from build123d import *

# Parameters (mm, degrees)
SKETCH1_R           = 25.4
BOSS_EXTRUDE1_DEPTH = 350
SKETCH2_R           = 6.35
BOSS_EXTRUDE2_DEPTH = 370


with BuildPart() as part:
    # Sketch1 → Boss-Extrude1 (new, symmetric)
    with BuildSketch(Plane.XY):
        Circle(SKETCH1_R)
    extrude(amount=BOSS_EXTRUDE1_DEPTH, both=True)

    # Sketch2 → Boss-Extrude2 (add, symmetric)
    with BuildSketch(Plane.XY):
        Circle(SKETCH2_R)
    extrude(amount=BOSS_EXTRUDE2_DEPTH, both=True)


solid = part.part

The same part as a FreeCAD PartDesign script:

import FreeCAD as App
import Part
import Sketcher

V = App.Vector
Q = App.Units.Quantity

doc = App.newDocument("Part")
params = doc.addObject("Spreadsheet::Sheet", "Params")
for row, (alias, value) in enumerate([
    ("sketch1_diameter", "50.8 mm"),
    ("pad1_length", "700 mm"),
    ("sketch2_diameter", "12.7 mm"),
    ("pad2_length", "740 mm"),
], start=1):
    params.set(f"A{row}", alias)
    params.set(f"B{row}", "=" + value)
    params.setAlias(f"B{row}", alias)

body = doc.addObject("PartDesign::Body", "Body")

sketch1 = doc.addObject("Sketcher::SketchObject", "Sketch")
body.addObject(sketch1)
sketch1.AttachmentSupport = (doc.XY_Plane, [""])
sketch1.MapMode = "FlatFace"
sketch1.addGeometry(Part.Circle(V(0, 0, 0), V(0, 0, 1), 25), False)
sketch1.addConstraint([
    Sketcher.Constraint("Coincident", 0, 3, -1, 1),
    Sketcher.Constraint("Diameter", 0, Q("50.8 mm")),
])
sketch1.setExpression("Constraints[1]", "Params.sketch1_diameter")
pad1 = doc.addObject("PartDesign::Pad", "Pad")
body.addObject(pad1)
pad1.Profile = sketch1
pad1.setExpression("Length", "Params.pad1_length")
pad1.Midplane = True

sketch2 = doc.addObject("Sketcher::SketchObject", "Sketch001")
body.addObject(sketch2)
sketch2.AttachmentSupport = (doc.XY_Plane, [""])
sketch2.MapMode = "FlatFace"
sketch2.addGeometry(Part.Circle(V(0, 0, 0), V(0, 0, 1), 6), False)
sketch2.addConstraint([
    Sketcher.Constraint("Coincident", 0, 3, -1, 1),
    Sketcher.Constraint("Diameter", 0, Q("12.7 mm")),
])
sketch2.setExpression("Constraints[1]", "Params.sketch2_diameter")
pad2 = doc.addObject("PartDesign::Pad", "Pad001")
body.addObject(pad2)
pad2.Profile = sketch2
pad2.setExpression("Length", "Params.pad2_length")
pad2.Midplane = True

doc.recompute()
